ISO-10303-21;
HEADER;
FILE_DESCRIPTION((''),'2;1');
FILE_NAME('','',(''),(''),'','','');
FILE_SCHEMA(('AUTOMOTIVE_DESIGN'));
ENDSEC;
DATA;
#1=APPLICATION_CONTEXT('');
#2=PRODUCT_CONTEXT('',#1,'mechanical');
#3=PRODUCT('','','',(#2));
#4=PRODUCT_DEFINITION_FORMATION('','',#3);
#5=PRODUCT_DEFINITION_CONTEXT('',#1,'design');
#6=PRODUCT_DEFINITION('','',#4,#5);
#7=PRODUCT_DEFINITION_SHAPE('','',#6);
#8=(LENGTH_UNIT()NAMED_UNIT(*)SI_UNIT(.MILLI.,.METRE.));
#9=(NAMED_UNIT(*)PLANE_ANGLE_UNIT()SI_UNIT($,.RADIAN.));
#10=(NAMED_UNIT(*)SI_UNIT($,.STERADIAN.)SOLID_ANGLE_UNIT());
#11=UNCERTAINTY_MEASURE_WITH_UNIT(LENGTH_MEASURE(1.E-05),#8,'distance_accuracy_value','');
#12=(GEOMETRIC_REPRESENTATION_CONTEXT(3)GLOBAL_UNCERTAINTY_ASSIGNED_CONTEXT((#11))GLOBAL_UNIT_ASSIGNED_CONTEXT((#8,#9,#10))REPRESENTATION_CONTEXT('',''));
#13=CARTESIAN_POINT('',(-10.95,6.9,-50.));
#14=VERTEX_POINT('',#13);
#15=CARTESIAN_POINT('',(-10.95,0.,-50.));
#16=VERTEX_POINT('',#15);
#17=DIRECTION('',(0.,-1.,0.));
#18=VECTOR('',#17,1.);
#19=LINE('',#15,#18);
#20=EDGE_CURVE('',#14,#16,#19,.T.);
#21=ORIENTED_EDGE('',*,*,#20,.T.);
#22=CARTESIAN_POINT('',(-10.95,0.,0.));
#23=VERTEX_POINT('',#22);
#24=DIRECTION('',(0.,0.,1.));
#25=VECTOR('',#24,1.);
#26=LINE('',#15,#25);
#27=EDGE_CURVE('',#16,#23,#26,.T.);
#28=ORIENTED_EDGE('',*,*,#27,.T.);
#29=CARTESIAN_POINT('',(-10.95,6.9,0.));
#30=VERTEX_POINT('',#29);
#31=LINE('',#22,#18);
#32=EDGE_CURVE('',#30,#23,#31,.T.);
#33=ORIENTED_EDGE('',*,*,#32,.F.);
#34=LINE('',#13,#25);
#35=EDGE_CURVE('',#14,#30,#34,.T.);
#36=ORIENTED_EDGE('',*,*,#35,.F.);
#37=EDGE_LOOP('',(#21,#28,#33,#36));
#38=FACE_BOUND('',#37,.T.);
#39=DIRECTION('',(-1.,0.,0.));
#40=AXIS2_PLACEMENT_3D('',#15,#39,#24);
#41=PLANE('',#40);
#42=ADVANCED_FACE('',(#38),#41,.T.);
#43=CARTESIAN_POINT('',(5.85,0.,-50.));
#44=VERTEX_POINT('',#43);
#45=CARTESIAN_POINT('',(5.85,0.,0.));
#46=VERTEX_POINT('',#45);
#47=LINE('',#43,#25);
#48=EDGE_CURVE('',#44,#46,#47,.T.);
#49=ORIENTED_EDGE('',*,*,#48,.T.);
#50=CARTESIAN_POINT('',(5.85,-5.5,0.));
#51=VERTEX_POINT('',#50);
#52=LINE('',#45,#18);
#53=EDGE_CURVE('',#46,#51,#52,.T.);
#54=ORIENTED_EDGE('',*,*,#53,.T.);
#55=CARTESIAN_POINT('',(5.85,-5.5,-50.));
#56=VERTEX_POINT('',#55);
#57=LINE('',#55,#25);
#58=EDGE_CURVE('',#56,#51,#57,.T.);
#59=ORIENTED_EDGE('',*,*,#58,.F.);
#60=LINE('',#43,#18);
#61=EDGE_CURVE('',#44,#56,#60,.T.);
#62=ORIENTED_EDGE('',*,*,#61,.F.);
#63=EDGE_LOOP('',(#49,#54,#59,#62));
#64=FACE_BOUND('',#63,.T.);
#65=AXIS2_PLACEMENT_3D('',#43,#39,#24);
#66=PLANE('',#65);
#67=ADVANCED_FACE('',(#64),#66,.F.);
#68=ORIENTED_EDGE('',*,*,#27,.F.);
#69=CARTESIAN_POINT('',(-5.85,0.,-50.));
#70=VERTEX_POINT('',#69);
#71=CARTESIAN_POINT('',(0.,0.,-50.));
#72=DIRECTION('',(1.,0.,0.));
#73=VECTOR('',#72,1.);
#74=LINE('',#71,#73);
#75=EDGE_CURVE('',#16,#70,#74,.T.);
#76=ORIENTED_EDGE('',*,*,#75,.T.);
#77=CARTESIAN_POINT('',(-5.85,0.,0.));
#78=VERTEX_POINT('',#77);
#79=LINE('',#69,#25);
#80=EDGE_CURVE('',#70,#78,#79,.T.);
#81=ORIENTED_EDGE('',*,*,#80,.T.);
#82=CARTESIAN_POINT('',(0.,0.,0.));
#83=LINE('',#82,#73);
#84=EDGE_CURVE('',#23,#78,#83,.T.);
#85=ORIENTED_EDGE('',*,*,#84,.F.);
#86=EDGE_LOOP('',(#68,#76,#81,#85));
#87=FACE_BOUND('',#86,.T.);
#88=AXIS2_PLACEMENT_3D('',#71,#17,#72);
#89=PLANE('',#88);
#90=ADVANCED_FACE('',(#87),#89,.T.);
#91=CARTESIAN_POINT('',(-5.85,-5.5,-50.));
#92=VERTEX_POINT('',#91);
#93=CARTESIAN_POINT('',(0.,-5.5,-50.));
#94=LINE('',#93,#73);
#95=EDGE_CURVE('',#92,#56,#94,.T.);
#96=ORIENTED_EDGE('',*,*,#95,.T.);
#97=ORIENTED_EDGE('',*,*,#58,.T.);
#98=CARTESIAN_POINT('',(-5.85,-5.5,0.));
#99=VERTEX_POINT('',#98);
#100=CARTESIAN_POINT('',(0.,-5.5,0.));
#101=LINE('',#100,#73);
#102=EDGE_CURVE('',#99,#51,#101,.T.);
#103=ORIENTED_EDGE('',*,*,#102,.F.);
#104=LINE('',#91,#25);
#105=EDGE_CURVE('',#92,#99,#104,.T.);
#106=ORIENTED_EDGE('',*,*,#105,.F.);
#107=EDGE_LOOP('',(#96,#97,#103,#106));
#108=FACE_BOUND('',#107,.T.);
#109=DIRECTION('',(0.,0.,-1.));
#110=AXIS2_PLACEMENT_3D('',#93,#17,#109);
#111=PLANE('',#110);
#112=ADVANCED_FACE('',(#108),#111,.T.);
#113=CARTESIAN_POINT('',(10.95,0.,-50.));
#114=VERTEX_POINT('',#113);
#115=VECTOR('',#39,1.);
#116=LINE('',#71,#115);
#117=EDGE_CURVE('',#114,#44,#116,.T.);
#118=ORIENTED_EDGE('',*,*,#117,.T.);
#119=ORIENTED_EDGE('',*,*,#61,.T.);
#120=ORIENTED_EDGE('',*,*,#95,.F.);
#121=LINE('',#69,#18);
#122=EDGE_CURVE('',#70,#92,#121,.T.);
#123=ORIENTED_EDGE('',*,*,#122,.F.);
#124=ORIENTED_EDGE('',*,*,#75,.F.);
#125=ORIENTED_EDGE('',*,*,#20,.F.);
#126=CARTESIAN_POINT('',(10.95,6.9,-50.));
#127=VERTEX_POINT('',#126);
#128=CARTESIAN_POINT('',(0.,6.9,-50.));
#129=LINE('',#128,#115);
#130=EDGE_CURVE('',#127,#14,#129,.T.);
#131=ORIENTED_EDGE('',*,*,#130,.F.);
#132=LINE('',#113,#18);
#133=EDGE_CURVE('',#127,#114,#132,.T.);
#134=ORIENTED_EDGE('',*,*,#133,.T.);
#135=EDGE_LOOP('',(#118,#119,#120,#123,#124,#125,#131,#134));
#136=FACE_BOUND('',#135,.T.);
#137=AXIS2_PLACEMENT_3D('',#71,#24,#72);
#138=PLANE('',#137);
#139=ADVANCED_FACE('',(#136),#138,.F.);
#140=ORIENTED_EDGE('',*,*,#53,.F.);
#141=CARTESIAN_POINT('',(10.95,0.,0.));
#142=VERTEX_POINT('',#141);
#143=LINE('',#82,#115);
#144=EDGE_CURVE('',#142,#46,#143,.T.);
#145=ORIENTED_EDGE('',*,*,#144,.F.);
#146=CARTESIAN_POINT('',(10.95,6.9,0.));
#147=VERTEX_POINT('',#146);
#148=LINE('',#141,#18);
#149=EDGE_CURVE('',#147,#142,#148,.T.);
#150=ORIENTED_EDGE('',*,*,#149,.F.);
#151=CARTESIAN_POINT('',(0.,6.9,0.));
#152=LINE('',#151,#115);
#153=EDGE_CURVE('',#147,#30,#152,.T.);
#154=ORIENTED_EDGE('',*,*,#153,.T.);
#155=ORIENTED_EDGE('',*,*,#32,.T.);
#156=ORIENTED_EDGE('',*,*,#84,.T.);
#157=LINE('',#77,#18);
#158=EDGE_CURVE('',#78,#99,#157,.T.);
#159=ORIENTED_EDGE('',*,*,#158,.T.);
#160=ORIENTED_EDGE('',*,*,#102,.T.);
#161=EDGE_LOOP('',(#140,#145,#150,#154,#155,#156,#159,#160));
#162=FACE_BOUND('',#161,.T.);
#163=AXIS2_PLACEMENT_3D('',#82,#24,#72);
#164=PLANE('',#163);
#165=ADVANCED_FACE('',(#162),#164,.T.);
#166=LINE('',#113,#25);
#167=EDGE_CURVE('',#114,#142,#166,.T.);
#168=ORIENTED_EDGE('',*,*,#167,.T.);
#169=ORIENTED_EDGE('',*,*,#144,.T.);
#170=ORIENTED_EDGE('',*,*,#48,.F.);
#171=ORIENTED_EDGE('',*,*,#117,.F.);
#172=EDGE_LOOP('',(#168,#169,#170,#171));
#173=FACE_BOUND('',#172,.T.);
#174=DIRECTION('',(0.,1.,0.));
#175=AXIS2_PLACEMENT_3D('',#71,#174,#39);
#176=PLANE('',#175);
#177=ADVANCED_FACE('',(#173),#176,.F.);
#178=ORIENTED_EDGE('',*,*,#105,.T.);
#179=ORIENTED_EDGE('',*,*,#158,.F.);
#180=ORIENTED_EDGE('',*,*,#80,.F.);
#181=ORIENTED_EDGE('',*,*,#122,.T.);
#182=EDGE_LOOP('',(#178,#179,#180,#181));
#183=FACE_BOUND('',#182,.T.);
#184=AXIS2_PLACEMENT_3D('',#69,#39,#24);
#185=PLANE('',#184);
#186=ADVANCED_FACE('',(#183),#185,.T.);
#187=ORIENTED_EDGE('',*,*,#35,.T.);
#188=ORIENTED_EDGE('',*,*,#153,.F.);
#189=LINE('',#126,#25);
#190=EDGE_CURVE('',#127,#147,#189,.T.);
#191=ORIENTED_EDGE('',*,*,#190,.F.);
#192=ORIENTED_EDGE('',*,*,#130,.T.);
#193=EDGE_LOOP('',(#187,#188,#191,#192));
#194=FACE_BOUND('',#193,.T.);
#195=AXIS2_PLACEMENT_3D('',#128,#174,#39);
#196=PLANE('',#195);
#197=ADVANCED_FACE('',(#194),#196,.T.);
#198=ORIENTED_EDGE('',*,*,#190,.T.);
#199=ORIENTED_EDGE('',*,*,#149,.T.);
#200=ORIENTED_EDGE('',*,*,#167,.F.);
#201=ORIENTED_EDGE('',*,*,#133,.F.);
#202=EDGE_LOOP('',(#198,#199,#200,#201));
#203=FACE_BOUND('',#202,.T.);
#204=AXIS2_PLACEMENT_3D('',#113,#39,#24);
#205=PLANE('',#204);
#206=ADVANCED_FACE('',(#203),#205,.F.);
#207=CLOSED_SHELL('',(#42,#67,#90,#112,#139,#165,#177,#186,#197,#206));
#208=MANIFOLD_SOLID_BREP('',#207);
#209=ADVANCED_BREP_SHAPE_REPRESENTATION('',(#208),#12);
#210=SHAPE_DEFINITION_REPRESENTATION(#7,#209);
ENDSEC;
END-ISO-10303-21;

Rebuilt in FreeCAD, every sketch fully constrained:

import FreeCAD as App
import Part
import Sketcher
from FreeCAD import Vector
Q = App.Units.Quantity


def add_polygon(sketch, points):
    """Adds a closed chain of lines whose ends are joined by coincident constraints."""
    first, n = sketch.GeometryCount, len(points)
    for a, b in zip(points, points[1:] + points[:1]):
        sketch.addGeometry(Part.LineSegment(App.Vector(*a, 0), App.Vector(*b, 0)), False)
    for i in range(n):
        sketch.addConstraint(Sketcher.Constraint("Coincident", first + i, 2, first + (i + 1) % n, 1))

doc = App.newDocument("Part")
body = doc.addObject("PartDesign::Body", "Body")

sketch1 = doc.addObject("Sketcher::SketchObject", "Sketch")
body.addObject(sketch1)
sketch1.AttachmentSupport = (doc.XY_Plane, [""])
sketch1.MapMode = "FlatFace"
add_polygon(sketch1, [(6, -6), (6, 0), (11, 0), (11, 7), (-11, 7), (-11, 0), (-6, 0), (-6, -6)])
sketch1.addConstraint([
    Sketcher.Constraint("Vertical", 0),
    Sketcher.Constraint("Horizontal", 1),
    Sketcher.Constraint("Vertical", 2),
    Sketcher.Constraint("Horizontal", 3),
    Sketcher.Constraint("Vertical", 4),
    Sketcher.Constraint("Horizontal", 5),
    Sketcher.Constraint("Vertical", 6),
    Sketcher.Constraint("Horizontal", 7),
    Sketcher.Constraint("Symmetric", 1, 2, 4, 2, -1, 1),
    Sketcher.Constraint("Symmetric", 0, 2, 5, 2, -2),
    Sketcher.Constraint("DistanceX", 1, 1, 1, 2, Q("5.1 mm")),
    Sketcher.Constraint("DistanceX", 3, 2, 3, 1, Q("21.9 mm")),
    Sketcher.Constraint("DistanceY", 0, 1, 0, 2, Q("5.5 mm")),
    Sketcher.Constraint("DistanceY", 2, 1, 2, 2, Q("6.9 mm")),
])
pad1 = doc.addObject("PartDesign::Pad", "Pad")
body.addObject(pad1)
pad1.Profile = sketch1
pad1.Length = 50
pad1.Reversed = True

doc.recompute()
